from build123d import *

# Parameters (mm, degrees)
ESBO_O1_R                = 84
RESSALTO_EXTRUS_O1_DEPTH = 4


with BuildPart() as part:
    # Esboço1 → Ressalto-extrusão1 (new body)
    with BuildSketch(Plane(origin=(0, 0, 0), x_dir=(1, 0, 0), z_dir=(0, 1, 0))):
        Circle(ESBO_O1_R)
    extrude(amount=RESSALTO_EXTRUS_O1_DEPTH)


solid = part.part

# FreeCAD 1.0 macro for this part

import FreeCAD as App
import Part
import Sketcher
from FreeCAD import Vector

doc = App.newDocument("Part")
body = doc.addObject("PartDesign::Body", "Body")

# Sketch on XZ plane
sketch1 = body.newObject("Sketcher::SketchObject", "Sketch")
sketch1.AttachmentSupport = (doc.getObject("XZ_Plane"), [""])
sketch1.MapMode = "FlatFace"
sketch1.addGeometry(Part.Circle(Vector(0, 0, 0), Vector(0, 0, 1), 84), False)
sketch1.addConstraint([
    Sketcher.Constraint("Coincident", 0, 3, -1, 1),
    Sketcher.Constraint("Diameter", 0, 168.0),
])
pad1 = body.newObject("PartDesign::Pad", "Pad")
pad1.Profile = sketch1
pad1.Length = 4
pad1.Reversed = True

doc.recompute()
